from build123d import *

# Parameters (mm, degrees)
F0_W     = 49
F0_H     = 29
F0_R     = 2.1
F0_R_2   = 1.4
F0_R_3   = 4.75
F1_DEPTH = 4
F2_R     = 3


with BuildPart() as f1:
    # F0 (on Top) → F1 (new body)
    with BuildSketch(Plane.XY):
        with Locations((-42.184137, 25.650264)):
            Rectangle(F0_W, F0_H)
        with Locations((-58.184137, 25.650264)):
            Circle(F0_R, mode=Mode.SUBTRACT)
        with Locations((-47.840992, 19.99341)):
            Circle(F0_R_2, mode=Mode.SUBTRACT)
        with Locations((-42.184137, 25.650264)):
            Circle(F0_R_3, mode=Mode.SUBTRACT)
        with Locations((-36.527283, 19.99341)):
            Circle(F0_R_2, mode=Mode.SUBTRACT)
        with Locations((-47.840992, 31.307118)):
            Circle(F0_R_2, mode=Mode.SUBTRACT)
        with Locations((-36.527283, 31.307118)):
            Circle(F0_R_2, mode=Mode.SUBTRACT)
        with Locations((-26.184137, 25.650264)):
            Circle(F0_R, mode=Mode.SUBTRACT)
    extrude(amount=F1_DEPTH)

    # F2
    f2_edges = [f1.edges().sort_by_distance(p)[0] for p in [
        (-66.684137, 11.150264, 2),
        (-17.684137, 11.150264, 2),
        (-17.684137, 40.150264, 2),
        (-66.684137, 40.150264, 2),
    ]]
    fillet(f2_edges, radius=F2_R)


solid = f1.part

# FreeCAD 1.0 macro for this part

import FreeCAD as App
import Part
import Sketcher
from FreeCAD import Vector


def edges_at(feature, points):
    """Names of the edges that pass closest to the given points."""
    edges = feature.Shape.Edges
    near = lambda p: min(range(len(edges)), key=lambda i: edges[i].distToShape(Part.Vertex(*p))[0])
    return sorted({f"Edge{near(p) + 1}" for p in points})

doc = App.newDocument("Part")
body = doc.addObject("PartDesign::Body", "Body")

# Sketch on XY plane
sketch1 = doc.addObject("Sketcher::SketchObject", "Sketch")
body.addObject(sketch1)
sketch1.AttachmentSupport = (doc.XY_Plane, [""])
sketch1.MapMode = "FlatFace"
sketch1.addGeometry(Part.LineSegment(Vector(-66.7, 40.2, 0), Vector(-66.7, 11.2, 0)), False)
sketch1.addGeometry(Part.LineSegment(Vector(-66.7, 11.2, 0), Vector(-17.7, 11.2, 0)), False)
sketch1.addGeometry(Part.LineSegment(Vector(-17.7, 11.2, 0), Vector(-17.7, 40.2, 0)), False)
sketch1.addGeometry(Part.LineSegment(Vector(-17.7, 40.2, 0), Vector(-66.7, 40.2, 0)), False)
sketch1.addGeometry(Part.Circle(Vector(-47.8, 20, 0), Vector(0, 0, 1), 1.4), False)
sketch1.addGeometry(Part.Circle(Vector(-36.5, 20, 0), Vector(0, 0, 1), 1.4), False)
sketch1.addGeometry(Part.Circle(Vector(-58.2, 25.7, 0), Vector(0, 0, 1), 2.1), False)
sketch1.addGeometry(Part.Circle(Vector(-47.8, 31.3, 0), Vector(0, 0, 1), 1.4), False)
sketch1.addGeometry(Part.Circle(Vector(-42.2, 25.7, 0), Vector(0, 0, 1), 4.8), False)
sketch1.addGeometry(Part.Circle(Vector(-26.2, 25.7, 0), Vector(0, 0, 1), 2.1), False)
sketch1.addGeometry(Part.Circle(Vector(-36.5, 31.3, 0), Vector(0, 0, 1), 1.4), False)
sketch1.addConstraint(Sketcher.Constraint("Coincident", 0, 2, 1, 1))
sketch1.addConstraint(Sketcher.Constraint("Coincident", 1, 2, 2, 1))
sketch1.addConstraint(Sketcher.Constraint("Coincident", 2, 2, 3, 1))
sketch1.addConstraint(Sketcher.Constraint("Coincident", 3, 2, 0, 1))
sketch1.addConstraint(Sketcher.Constraint("Vertical", 0))
sketch1.addConstraint(Sketcher.Constraint("Horizontal", 1))
sketch1.addConstraint(Sketcher.Constraint("Vertical", 2))
sketch1.addConstraint(Sketcher.Constraint("Horizontal", 3))
sketch1.addConstraint(Sketcher.Constraint("Equal", 4, 5))
sketch1.addConstraint(Sketcher.Constraint("Equal", 5, 7))
sketch1.addConstraint(Sketcher.Constraint("Equal", 6, 9))
sketch1.addConstraint(Sketcher.Constraint("Equal", 7, 10))
sketch1.addConstraint(Sketcher.Constraint("Horizontal", 4, 3, 5, 3))
sketch1.addConstraint(Sketcher.Constraint("Horizontal", 6, 3, 8, 3))
sketch1.addConstraint(Sketcher.Constraint("Horizontal", 8, 3, 9, 3))
sketch1.addConstraint(Sketcher.Constraint("Horizontal", 7, 3, 10, 3))
sketch1.addConstraint(Sketcher.Constraint("Vertical", 4, 3, 7, 3))
sketch1.addConstraint(Sketcher.Constraint("Vertical", 5, 3, 10, 3))
sketch1.addConstraint(Sketcher.Constraint("Diameter", 4, 2.8))
sketch1.addConstraint(Sketcher.Constraint("Diameter", 6, 4.2))
sketch1.addConstraint(Sketcher.Constraint("Diameter", 8, 9.5))
sketch1.addConstraint(Sketcher.Constraint("DistanceX", 1, 1, 1, 2, 49.0))
sketch1.addConstraint(Sketcher.Constraint("DistanceY", 0, 2, 0, 1, 29.0))
sketch1.addConstraint(Sketcher.Constraint("DistanceX", 6, 3, 8, 3, 16.0))
sketch1.addConstraint(Sketcher.Constraint("DistanceX", 8, 3, 9, 3, 16.0))
sketch1.addConstraint(Sketcher.Constraint("DistanceX", 0, 2, 6, 3, 8.5))
sketch1.addConstraint(Sketcher.Constraint("DistanceY", 0, 2, 6, 3, 14.5))
sketch1.addConstraint(Sketcher.Constraint("DistanceY", -1, 1, 4, 3, 19.99341))
sketch1.addConstraint(Sketcher.Constraint("DistanceX", 4, 3, 5, 3, 11.313709))
sketch1.addConstraint(Sketcher.Constraint("DistanceX", 4, 3, -1, 1, 47.840992))
sketch1.addConstraint(Sketcher.Constraint("DistanceX", 6, 3, -1, 1, 58.184137))
sketch1.addConstraint(Sketcher.Constraint("DistanceY", -1, 1, 6, 3, 25.650264))
sketch1.addConstraint(Sketcher.Constraint("DistanceY", -1, 1, 7, 3, 31.307118))
pad1 = doc.addObject("PartDesign::Pad", "Pad")
body.addObject(pad1)
pad1.Profile = sketch1
pad1.Length = 4
doc.recompute()

fillet = doc.addObject("PartDesign::Fillet", "Fillet")
body.addObject(fillet)
fillet.Base = (pad1, edges_at(pad1, [
    (-66.684, 11.15, 2),
    (-17.684, 11.15, 2),
    (-17.684, 40.15, 2),
    (-66.684, 40.15, 2),
]))
fillet.Radius = 3

doc.recompute()
